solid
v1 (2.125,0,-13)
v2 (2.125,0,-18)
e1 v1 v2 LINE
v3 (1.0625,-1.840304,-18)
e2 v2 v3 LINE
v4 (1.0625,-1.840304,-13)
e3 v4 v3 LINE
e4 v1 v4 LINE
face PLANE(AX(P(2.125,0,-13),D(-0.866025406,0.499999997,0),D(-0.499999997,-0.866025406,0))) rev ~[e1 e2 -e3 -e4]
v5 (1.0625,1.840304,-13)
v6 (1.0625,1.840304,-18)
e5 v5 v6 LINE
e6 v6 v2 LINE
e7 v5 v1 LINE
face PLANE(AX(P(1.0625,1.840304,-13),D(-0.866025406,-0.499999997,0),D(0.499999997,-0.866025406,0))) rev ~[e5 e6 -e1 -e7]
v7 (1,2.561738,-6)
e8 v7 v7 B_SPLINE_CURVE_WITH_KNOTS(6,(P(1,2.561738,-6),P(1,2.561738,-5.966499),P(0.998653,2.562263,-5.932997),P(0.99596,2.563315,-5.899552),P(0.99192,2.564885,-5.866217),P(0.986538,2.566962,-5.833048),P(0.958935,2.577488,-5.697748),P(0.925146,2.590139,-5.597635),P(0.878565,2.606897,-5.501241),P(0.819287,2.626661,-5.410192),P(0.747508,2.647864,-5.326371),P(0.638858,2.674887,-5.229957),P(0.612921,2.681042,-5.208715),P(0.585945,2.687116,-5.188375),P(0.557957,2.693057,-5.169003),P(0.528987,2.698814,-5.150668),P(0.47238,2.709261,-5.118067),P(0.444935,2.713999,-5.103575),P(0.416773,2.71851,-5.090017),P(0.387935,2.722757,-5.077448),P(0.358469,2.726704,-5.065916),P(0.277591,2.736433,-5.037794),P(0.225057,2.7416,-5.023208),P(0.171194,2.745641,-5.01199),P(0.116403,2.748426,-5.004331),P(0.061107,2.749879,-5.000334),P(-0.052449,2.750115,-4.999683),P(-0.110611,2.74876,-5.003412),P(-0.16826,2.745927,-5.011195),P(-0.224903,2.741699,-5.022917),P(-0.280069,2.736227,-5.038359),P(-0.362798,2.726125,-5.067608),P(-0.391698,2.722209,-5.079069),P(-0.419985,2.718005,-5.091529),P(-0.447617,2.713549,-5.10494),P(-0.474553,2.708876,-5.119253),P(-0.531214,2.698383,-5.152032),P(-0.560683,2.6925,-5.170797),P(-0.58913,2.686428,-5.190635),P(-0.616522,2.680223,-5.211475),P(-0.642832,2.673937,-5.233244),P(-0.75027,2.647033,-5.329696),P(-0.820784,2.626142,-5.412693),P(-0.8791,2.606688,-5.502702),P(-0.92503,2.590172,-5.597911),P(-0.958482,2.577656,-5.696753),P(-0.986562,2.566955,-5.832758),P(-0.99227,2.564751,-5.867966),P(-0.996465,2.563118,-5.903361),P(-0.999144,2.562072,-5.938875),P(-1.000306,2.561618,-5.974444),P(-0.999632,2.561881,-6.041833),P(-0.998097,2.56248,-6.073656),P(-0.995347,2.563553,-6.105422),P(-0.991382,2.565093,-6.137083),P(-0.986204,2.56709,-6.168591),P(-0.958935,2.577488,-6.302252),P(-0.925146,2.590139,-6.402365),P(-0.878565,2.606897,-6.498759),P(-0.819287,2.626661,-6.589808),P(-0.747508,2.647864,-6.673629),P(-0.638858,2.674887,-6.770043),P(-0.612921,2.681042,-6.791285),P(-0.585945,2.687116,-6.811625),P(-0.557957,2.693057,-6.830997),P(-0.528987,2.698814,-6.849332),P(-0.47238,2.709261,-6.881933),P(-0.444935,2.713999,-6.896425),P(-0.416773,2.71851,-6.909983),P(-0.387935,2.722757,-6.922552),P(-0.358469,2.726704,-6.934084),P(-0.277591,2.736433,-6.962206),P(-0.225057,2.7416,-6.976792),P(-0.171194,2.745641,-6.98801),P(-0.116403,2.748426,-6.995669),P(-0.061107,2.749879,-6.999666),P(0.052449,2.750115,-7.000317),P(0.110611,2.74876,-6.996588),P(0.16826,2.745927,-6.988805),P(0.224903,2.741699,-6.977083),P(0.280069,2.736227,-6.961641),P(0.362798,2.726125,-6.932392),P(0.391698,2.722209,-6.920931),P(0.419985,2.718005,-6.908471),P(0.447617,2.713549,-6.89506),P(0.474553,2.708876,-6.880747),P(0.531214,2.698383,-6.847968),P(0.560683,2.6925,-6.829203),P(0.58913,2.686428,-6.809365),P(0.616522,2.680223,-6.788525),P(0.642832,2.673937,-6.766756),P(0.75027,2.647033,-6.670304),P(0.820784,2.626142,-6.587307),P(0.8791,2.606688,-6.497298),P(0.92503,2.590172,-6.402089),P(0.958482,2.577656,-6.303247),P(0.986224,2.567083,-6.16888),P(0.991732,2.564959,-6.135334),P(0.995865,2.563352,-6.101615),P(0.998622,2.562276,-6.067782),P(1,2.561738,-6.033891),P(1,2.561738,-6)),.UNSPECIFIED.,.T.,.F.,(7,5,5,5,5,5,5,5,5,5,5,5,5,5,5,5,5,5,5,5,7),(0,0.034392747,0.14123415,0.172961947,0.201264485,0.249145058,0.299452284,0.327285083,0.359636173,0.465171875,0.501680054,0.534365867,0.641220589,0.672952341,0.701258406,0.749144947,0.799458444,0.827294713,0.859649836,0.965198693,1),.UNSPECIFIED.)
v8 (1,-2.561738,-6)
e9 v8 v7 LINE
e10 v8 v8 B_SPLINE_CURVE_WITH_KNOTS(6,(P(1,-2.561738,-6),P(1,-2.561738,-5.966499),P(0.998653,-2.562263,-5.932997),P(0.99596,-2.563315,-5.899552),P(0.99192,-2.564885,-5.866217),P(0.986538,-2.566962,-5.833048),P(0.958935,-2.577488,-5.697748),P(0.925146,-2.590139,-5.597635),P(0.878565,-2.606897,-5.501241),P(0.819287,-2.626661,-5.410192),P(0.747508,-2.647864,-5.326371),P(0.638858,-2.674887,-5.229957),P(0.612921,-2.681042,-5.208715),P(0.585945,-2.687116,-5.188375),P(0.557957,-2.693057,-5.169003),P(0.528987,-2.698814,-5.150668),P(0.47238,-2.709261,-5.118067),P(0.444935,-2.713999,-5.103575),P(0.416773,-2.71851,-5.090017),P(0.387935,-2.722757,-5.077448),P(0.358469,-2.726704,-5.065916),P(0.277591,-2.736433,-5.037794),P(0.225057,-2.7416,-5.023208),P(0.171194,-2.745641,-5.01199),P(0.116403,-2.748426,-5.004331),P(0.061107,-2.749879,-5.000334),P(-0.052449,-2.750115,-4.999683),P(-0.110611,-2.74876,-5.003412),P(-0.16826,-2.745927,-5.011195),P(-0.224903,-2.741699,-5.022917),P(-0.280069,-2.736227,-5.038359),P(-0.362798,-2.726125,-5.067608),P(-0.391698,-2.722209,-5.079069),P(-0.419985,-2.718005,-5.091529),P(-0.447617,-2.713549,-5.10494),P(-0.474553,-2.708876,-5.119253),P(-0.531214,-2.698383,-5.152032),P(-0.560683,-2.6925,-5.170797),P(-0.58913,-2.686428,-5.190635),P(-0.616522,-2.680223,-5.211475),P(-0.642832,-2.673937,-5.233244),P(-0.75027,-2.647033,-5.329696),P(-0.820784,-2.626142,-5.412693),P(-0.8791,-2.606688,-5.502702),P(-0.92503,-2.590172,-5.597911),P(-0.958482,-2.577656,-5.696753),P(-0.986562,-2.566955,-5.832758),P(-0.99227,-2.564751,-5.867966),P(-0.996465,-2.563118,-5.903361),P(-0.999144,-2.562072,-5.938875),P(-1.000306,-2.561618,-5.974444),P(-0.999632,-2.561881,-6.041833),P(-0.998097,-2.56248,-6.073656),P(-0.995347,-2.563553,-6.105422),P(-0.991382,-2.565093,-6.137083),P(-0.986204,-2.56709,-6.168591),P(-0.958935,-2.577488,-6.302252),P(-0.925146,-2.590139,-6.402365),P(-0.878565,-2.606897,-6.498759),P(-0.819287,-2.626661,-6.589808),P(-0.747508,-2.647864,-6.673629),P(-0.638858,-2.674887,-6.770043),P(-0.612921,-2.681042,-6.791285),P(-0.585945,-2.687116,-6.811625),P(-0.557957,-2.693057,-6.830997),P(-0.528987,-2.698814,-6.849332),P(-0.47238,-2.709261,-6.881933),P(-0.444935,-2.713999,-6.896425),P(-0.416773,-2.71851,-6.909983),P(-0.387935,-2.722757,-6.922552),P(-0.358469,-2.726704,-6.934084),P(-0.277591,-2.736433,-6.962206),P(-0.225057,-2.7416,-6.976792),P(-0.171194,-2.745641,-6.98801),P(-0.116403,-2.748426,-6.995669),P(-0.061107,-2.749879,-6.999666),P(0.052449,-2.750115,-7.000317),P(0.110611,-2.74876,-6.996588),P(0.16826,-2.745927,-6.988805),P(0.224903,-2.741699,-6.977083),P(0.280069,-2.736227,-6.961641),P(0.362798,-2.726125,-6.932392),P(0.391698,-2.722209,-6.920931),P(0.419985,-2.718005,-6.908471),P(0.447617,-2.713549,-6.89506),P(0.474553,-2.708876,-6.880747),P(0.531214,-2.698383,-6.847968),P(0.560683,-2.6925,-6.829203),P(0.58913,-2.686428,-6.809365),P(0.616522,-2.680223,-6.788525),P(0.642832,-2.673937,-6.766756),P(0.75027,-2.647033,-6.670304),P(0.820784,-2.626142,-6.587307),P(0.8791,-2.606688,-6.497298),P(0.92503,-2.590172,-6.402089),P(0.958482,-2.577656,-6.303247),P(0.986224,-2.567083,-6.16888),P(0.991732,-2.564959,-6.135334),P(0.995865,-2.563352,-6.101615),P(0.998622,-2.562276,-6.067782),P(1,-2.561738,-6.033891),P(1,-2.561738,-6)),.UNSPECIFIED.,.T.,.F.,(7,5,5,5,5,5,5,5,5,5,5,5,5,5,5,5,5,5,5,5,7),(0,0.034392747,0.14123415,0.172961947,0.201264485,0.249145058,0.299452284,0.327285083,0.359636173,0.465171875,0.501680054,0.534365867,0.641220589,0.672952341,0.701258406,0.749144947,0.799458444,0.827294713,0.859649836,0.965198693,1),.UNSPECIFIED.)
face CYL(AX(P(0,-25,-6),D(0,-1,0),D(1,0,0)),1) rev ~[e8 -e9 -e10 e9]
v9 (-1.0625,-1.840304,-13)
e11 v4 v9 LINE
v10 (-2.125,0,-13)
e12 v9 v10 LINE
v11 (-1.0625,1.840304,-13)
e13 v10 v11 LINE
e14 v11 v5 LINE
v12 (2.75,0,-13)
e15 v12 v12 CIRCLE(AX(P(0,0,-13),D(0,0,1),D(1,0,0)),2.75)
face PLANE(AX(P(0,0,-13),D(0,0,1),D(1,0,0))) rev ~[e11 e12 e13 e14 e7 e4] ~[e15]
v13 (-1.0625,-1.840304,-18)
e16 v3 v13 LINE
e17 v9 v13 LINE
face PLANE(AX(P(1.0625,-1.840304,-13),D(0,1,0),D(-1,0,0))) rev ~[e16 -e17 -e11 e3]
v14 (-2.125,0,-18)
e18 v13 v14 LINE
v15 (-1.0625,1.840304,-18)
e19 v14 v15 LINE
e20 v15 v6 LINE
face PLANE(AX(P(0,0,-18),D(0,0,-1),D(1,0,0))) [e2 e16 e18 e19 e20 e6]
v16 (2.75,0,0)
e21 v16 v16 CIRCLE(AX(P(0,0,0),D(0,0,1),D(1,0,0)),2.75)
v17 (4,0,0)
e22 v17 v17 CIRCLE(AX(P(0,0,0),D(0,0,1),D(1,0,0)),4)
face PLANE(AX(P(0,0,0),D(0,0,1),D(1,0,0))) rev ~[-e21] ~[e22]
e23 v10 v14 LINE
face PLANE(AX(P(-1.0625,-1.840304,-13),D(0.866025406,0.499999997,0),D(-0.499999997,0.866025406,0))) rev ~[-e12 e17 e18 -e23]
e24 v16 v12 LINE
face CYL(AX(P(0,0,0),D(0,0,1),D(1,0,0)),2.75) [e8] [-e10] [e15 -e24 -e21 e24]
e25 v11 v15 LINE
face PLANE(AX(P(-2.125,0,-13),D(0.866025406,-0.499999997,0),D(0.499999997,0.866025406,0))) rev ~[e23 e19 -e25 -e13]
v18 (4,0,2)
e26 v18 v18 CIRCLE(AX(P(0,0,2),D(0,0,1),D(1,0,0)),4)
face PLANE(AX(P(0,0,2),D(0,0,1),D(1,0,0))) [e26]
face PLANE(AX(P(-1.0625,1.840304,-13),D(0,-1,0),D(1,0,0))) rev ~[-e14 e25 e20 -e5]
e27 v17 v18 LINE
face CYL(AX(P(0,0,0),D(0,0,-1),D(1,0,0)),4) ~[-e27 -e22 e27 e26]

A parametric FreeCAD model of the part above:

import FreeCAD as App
import Part
import Sketcher
Q = App.Units.Quantity

doc = App.newDocument("Part")
body = doc.addObject("PartDesign::Body", "Body")

sketch1 = body.newObject("Sketcher::SketchObject", "Sketch")
sketch1.AttachmentSupport = (doc.getObject("XY_Plane"), [""])
sketch1.MapMode = "FlatFace"
sketch1.addGeometry(Part.Circle(App.Vector(0, 0, 0), App.Vector(0, 0, 1), 4), False)
sketch1.addConstraint([
    Sketcher.Constraint("Coincident", 0, 3, -1, 1),
    Sketcher.Constraint("Diameter", 0, Q("8 mm")),
])
pad1 = body.newObject("PartDesign::Pad", "Pad")
pad1.Profile = sketch1
pad1.Length = 2

sketch2 = body.newObject("Sketcher::SketchObject", "Sketch001")
sketch2.AttachmentSupport = (doc.getObject("XY_Plane"), [""])
sketch2.MapMode = "FlatFace"
sketch2.addGeometry(Part.Circle(App.Vector(0, 0, 0), App.Vector(0, 0, 1), 2.8), False)
sketch2.addConstraint([
    Sketcher.Constraint("Coincident", 0, 3, -1, 1),
    Sketcher.Constraint("Diameter", 0, Q("5.5 mm")),
])
pad2 = body.newObject("PartDesign::Pad", "Pad001")
pad2.Profile = sketch2
pad2.Length = 13
pad2.Reversed = True

sketch3 = body.newObject("Sketcher::SketchObject", "Sketch002")
sketch3.AttachmentSupport = (doc.getObject("XY_Plane"), [""])
sketch3.MapMode = "FlatFace"
sketch3.AttachmentOffset = App.Placement(App.Vector(0, 0, -13), App.Rotation())
sketch3.addGeometry([
    Part.LineSegment(App.Vector(1.1, 1.8, 0), App.Vector(2.1, 0, 0)),
    Part.LineSegment(App.Vector(2.1, 0, 0), App.Vector(1.1, -1.8, 0)),
    Part.LineSegment(App.Vector(1.1, -1.8, 0), App.Vector(-1.1, -1.8, 0)),
    Part.LineSegment(App.Vector(-1.1, -1.8, 0), App.Vector(-2.1, 0, 0)),
    Part.LineSegment(App.Vector(-2.1, 0, 0), App.Vector(-1.1, 1.8, 0)),
    Part.LineSegment(App.Vector(-1.1, 1.8, 0), App.Vector(1.1, 1.8, 0)),
], False)
sketch3.addConstraint([
    Sketcher.Constraint("Coincident", 0, 2, 1, 1),
    Sketcher.Constraint("Coincident", 1, 2, 2, 1),
    Sketcher.Constraint("Coincident", 2, 2, 3, 1),
    Sketcher.Constraint("Coincident", 3, 2, 4, 1),
    Sketcher.Constraint("Coincident", 4, 2, 5, 1),
    Sketcher.Constraint("Coincident", 5, 2, 0, 1),
    Sketcher.Constraint("Horizontal", 2),
    Sketcher.Constraint("Horizontal", 5),
    Sketcher.Constraint("Symmetric", 0, 2, 3, 2, -1, 1),
    Sketcher.Constraint("Symmetric", 1, 2, 4, 2, -1, 1),
    Sketcher.Constraint("PointOnObject", 0, 2, -1),
    Sketcher.Constraint("Parallel", 0, 3),
    Sketcher.Constraint("Vertical", 2, 2, 4, 2),
    Sketcher.Constraint("Angle", 0, Q("-60 deg")),
    Sketcher.Constraint("DistanceX", 2, 2, 2, 1, Q("2.125 mm")),
    Sketcher.Constraint("DistanceX", 3, 2, 0, 2, Q("4.25 mm")),
])
pad3 = body.newObject("PartDesign::Pad", "Pad002")
pad3.Profile = sketch3
pad3.Length = 5
pad3.Reversed = True

sketch4 = body.newObject("Sketcher::SketchObject", "Sketch003")
sketch4.AttachmentSupport = (doc.getObject("XZ_Plane"), [""])
sketch4.MapMode = "FlatFace"
sketch4.AttachmentOffset = App.Placement(App.Vector(0, 0, 25), App.Rotation())
sketch4.addGeometry(Part.Circle(App.Vector(0, -6, 0), App.Vector(0, 0, 1), 1), False)
sketch4.addConstraint([
    Sketcher.Constraint("PointOnObject", 0, 3, -2),
    Sketcher.Constraint("Diameter", 0, Q("2 mm")),
    Sketcher.Constraint("DistanceY", 0, 3, -1, 1, Q("6 mm")),
])
pocket1 = body.newObject("PartDesign::Pocket", "Pocket")
pocket1.Profile = sketch4
pocket1.Length = 45

doc.recompute()
